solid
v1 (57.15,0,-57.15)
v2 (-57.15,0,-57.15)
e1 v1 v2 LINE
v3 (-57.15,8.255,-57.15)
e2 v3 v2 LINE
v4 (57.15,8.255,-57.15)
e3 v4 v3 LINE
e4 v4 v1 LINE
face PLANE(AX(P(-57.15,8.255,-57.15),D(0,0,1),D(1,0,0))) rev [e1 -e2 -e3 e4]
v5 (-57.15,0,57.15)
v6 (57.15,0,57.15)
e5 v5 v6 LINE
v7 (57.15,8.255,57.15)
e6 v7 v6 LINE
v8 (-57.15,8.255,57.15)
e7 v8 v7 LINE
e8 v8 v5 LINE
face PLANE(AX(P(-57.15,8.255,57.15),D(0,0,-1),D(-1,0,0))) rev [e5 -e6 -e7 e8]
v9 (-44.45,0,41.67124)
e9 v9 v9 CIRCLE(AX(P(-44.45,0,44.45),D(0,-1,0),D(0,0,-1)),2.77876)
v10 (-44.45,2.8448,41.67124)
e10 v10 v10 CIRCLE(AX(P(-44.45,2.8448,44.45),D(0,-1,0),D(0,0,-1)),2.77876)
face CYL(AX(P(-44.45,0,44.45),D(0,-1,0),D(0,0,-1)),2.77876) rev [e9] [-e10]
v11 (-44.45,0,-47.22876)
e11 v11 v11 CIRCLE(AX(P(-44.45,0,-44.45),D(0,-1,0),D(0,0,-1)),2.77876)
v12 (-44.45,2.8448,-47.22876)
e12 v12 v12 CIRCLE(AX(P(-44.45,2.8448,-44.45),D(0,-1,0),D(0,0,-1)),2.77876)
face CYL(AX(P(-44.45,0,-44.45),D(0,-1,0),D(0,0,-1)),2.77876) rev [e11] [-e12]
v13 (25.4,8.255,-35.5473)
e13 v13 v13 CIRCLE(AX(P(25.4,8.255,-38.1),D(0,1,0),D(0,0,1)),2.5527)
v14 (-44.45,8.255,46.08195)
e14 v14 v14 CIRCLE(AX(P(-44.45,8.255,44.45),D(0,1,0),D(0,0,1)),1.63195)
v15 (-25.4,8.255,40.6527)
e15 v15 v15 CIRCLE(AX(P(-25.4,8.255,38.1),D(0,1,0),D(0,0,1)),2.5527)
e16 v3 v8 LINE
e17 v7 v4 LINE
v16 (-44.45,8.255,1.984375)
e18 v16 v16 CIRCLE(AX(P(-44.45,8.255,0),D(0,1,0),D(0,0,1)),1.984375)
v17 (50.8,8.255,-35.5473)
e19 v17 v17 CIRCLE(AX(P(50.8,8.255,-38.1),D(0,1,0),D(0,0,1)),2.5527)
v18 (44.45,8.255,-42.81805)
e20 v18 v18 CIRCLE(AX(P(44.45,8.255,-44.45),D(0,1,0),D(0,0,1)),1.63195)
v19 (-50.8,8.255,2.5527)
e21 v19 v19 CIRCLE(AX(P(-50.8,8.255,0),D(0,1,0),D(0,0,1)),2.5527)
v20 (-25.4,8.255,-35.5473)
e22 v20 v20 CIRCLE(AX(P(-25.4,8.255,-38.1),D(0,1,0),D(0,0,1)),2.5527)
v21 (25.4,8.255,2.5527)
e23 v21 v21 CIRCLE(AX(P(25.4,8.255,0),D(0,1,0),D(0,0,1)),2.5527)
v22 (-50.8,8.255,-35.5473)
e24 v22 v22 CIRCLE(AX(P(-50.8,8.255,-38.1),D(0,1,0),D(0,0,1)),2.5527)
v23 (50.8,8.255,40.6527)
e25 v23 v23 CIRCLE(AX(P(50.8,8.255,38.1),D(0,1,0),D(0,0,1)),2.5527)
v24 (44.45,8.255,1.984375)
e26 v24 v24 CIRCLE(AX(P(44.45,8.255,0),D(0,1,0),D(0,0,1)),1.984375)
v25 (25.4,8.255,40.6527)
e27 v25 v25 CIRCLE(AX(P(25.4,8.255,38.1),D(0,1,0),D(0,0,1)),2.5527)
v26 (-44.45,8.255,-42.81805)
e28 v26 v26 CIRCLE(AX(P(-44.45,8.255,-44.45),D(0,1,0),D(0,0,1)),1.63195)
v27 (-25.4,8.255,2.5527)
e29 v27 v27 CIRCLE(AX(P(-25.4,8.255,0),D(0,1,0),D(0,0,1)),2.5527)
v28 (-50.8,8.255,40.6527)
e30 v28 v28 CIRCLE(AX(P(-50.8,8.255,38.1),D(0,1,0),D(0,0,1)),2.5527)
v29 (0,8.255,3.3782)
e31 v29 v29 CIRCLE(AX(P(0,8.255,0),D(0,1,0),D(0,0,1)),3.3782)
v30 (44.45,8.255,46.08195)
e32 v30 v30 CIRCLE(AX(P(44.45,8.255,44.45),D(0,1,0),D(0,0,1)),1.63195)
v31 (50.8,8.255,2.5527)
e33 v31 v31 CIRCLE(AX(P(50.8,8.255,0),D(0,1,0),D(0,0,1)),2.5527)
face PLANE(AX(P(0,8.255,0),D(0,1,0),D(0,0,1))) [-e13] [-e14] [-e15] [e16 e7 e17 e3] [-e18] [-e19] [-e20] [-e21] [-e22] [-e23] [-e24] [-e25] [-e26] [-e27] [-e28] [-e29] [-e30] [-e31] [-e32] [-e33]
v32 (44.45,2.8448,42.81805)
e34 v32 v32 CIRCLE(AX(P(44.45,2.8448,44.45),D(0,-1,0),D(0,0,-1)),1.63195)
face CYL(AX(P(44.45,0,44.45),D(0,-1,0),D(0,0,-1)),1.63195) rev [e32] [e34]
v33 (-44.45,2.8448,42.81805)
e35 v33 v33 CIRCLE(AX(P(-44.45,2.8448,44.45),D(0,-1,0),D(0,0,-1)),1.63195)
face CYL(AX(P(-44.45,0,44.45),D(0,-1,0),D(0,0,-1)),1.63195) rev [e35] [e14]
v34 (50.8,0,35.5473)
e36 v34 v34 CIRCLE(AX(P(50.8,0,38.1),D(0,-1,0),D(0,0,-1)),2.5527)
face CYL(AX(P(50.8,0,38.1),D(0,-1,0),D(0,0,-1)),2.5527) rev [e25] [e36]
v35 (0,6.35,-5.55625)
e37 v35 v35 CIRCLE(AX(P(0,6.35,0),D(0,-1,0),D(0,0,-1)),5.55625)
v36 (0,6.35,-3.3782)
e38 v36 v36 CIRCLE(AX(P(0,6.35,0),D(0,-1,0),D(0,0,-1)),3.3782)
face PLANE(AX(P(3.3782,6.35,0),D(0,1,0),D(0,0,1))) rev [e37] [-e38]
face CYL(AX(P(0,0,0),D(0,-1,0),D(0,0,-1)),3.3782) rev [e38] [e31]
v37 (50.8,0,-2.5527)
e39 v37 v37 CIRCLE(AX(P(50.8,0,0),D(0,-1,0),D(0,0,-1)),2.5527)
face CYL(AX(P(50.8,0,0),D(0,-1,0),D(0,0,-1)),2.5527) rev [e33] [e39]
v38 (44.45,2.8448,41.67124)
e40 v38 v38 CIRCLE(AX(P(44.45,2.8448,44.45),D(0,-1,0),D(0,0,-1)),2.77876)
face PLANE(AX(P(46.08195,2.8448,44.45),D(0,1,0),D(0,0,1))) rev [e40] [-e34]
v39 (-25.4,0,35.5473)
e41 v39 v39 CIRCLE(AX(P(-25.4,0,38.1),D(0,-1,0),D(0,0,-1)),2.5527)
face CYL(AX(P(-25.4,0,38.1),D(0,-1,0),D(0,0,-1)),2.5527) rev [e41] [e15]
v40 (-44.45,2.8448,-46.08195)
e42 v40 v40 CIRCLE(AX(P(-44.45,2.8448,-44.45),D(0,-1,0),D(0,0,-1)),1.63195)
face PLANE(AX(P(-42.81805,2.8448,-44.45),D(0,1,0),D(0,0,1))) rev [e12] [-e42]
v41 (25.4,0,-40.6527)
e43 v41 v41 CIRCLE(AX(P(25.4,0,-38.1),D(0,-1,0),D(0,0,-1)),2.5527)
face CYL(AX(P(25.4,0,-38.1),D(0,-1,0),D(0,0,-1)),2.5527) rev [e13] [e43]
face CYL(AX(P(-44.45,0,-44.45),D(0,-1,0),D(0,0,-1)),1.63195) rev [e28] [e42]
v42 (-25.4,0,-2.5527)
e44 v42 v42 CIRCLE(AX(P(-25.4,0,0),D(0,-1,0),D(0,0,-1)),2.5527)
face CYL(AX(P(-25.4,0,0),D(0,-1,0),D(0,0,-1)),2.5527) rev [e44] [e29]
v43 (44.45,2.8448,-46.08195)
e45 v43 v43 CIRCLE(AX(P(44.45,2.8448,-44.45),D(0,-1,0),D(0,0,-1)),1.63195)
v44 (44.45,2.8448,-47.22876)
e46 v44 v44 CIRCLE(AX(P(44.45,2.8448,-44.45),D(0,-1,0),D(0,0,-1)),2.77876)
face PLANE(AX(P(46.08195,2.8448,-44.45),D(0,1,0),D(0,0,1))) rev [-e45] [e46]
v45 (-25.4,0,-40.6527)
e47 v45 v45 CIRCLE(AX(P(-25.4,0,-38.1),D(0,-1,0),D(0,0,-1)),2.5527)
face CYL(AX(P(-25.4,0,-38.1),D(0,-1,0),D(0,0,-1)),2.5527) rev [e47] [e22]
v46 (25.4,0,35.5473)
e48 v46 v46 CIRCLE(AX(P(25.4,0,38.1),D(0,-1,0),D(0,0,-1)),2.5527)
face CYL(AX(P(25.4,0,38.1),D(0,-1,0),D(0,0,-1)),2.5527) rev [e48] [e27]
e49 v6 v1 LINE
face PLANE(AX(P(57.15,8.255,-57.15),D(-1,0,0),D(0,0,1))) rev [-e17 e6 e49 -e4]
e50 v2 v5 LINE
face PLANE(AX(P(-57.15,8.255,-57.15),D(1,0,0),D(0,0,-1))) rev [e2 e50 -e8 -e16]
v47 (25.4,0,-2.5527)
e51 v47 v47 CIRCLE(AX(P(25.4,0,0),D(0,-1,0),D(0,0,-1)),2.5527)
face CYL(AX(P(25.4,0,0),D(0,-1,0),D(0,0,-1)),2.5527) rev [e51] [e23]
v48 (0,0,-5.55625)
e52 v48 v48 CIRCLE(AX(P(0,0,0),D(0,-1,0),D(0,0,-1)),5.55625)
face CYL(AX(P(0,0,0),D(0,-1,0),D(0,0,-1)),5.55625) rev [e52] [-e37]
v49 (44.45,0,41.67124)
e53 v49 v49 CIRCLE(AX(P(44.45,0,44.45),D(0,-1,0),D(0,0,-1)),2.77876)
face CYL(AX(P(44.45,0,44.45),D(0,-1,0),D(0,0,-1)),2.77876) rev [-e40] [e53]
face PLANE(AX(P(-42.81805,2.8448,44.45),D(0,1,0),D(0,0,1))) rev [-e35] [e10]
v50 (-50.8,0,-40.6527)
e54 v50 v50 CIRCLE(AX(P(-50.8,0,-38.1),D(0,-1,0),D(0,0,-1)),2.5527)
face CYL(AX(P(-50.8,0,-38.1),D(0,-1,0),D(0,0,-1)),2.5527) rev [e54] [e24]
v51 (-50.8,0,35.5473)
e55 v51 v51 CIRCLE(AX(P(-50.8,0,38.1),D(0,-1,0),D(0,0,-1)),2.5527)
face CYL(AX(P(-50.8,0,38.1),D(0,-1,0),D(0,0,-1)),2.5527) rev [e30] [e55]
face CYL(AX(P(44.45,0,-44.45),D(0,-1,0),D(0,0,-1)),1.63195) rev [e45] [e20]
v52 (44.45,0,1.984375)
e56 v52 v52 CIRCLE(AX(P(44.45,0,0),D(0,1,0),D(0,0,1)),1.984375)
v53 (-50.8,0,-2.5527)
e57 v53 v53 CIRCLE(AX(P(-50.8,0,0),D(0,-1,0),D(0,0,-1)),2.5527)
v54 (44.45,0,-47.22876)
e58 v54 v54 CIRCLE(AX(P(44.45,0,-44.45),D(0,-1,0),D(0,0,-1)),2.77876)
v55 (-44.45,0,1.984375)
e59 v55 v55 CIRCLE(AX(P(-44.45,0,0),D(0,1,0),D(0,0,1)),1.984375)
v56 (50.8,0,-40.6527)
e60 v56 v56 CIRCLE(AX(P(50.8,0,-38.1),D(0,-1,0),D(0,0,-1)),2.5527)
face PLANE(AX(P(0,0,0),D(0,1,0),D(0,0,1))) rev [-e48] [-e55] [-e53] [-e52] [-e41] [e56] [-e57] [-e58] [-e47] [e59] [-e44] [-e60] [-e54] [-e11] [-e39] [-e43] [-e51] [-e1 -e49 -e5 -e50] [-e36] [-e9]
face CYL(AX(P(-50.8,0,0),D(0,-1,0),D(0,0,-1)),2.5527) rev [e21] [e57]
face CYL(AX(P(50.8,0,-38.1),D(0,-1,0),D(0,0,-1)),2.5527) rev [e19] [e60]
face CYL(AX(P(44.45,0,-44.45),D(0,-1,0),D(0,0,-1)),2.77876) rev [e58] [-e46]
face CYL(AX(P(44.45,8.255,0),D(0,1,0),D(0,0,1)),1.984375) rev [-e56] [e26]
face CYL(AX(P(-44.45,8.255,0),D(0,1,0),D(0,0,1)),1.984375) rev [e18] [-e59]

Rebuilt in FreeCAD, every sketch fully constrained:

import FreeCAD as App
import Part
import Sketcher
Q = App.Units.Quantity

doc = App.newDocument("Part")
params = doc.addObject("Spreadsheet::Sheet", "Params")
for row, (alias, value) in enumerate([
    ("sketch1_width", "4.5 in"),
    ("pad1_length", "0.325 in"),
    ("sketch2_diameter", "0.266 in"),
    ("hole_diameter", "0.266 in"),
    ("hole_cbore_diameter", "0.4375 in"),
    ("hole_cbore_depth", "0.25 in"),
    ("sketch3_diameter", "0.15625 in"),
    ("hole2_diameter", "0.15625 in"),
    ("hole3_diameter", "0.1285 in"),
    ("hole3_depth", "0.325 in"),
    ("hole3_cbore_diameter", "0.2188 in"),
    ("hole3_cbore_depth", "0.112 in"),
    ("sketch5_diameter", "0.201 in"),
    ("hole4_diameter", "0.201 in"),
], start=1):
    params.set(f"A{row}", alias)
    params.set(f"B{row}", "=" + value)
    params.setAlias(f"B{row}", alias)

body = doc.addObject("PartDesign::Body", "Body")

sketch1 = body.newObject("Sketcher::SketchObject", "Sketch")
sketch1.AttachmentSupport = (doc.getObject("XZ_Plane"), [""])
sketch1.MapMode = "FlatFace"
sketch1.addGeometry([
    Part.LineSegment(App.Vector(-57, -57, 0), App.Vector(-57, 57, 0)),
    Part.LineSegment(App.Vector(-57, 57, 0), App.Vector(57, 57, 0)),
    Part.LineSegment(App.Vector(57, 57, 0), App.Vector(57, -57, 0)),
    Part.LineSegment(App.Vector(57, -57, 0), App.Vector(-57, -57, 0)),
], False)
sketch1.addConstraint([
    Sketcher.Constraint("Coincident", 0, 2, 1, 1),
    Sketcher.Constraint("Coincident", 1, 2, 2, 1),
    Sketcher.Constraint("Coincident", 2, 2, 3, 1),
    Sketcher.Constraint("Coincident", 3, 2, 0, 1),
    Sketcher.Constraint("Vertical", 0),
    Sketcher.Constraint("Horizontal", 1),
    Sketcher.Constraint("Vertical", 2),
    Sketcher.Constraint("Horizontal", 3),
    Sketcher.Constraint("Symmetric", 0, 2, 2, 2, -1, 1),
    Sketcher.Constraint("Equal", 3, 0),
    Sketcher.Constraint("DistanceX", 1, 1, 1, 2, Q("4.5 in")),
])
sketch1.setExpression("Constraints[10]", "Params.sketch1_width")
pad1 = body.newObject("PartDesign::Pad", "Pad")
pad1.Profile = sketch1
pad1.setExpression("Length", "Params.pad1_length")
pad1.Reversed = True

sketch2 = body.newObject("Sketcher::SketchObject", "Sketch001")
sketch2.AttachmentSupport = (doc.getObject("XZ_Plane"), [""])
sketch2.MapMode = "FlatFace"
sketch2.addGeometry(Part.Circle(App.Vector(0, 0, 0), App.Vector(0, 0, 1), 3.4), False)
sketch2.addConstraint([
    Sketcher.Constraint("Coincident", 0, 3, -1, 1),
    Sketcher.Constraint("Diameter", 0, Q("0.266 in")),
])
sketch2.setExpression("Constraints[1]", "Params.sketch2_diameter")
doc.recompute()
hole = body.newObject("PartDesign::Hole", "Hole")
hole.Profile = sketch2
hole.ThreadType = "None"
hole.setExpression("Diameter", "Params.hole_diameter")
hole.DepthType = "ThroughAll"
hole.HoleCutType = "Counterbore"
hole.setExpression("HoleCutDiameter", "Params.hole_cbore_diameter")
hole.setExpression("HoleCutDepth", "Params.hole_cbore_depth")

sketch3 = body.newObject("Sketcher::SketchObject", "Sketch002")
sketch3.AttachmentSupport = (doc.getObject("XZ_Plane"), [""])
sketch3.MapMode = "FlatFace"
sketch3.AttachmentOffset = App.Placement(App.Vector(0, 0, -0.325 * 25.4), App.Rotation())
sketch3.addGeometry([
    Part.Circle(App.Vector(44.5, 0, 0), App.Vector(0, 0, 1), 2),
    Part.Circle(App.Vector(-44.5, 0, 0), App.Vector(0, 0, 1), 2),
], False)
sketch3.addConstraint([
    Sketcher.Constraint("Equal", 0, 1),
    Sketcher.Constraint("Symmetric", 0, 3, 1, 3, -1, 1),
    Sketcher.Constraint("PointOnObject", 0, 3, -1),
    Sketcher.Constraint("Diameter", 0, Q("0.15625 in")),
    Sketcher.Constraint("DistanceX", 1, 3, 0, 3, Q("3.5 in")),
])
sketch3.setExpression("Constraints[3]", "Params.sketch3_diameter")
doc.recompute()
hole2 = body.newObject("PartDesign::Hole", "Hole001")
hole2.Profile = sketch3
hole2.ThreadType = "None"
hole2.setExpression("Diameter", "Params.hole2_diameter")
hole2.DepthType = "ThroughAll"
hole2.Reversed = True

sketch4 = body.newObject("Sketcher::SketchObject", "Sketch003")
sketch4.AttachmentSupport = (doc.getObject("XZ_Plane"), [""])
sketch4.MapMode = "FlatFace"
sketch4.addGeometry([
    Part.Circle(App.Vector(-44.5, 44.5, 0), App.Vector(0, 0, 1), 1.6),
    Part.Circle(App.Vector(-44.5, -44.5, 0), App.Vector(0, 0, 1), 1.6),
    Part.Circle(App.Vector(44.5, -44.5, 0), App.Vector(0, 0, 1), 1.6),
    Part.Circle(App.Vector(44.5, 44.5, 0), App.Vector(0, 0, 1), 1.6),
    Part.Circle(App.Vector(0, 0, 0), App.Vector(0, 0, 1), 1.6),
], False)
sketch4.addConstraint([
    Sketcher.Constraint("Coincident", 4, 3, -1, 1),
    Sketcher.Constraint("Equal", 0, 1),
    Sketcher.Constraint("Equal", 1, 2),
    Sketcher.Constraint("Equal", 2, 3),
    Sketcher.Constraint("Equal", 3, 4),
    Sketcher.Constraint("Symmetric", 0, 3, 2, 3, -1, 1),
    Sketcher.Constraint("Symmetric", 1, 3, 3, 3, -1, 1),
    Sketcher.Constraint("Symmetric", 1, 3, 2, 3, -2),
    Sketcher.Constraint("Diameter", 0, Q("0.1285 in")),
    Sketcher.Constraint("DistanceY", 1, 3, 0, 3, Q("3.5 in")),
    Sketcher.Constraint("DistanceX", 1, 3, 2, 3, Q("3.5 in")),
])
doc.recompute()
hole3 = body.newObject("PartDesign::Hole", "Hole002")
hole3.Profile = sketch4
hole3.ThreadType = "None"
hole3.setExpression("Diameter", "Params.hole3_diameter")
hole3.DepthType = "Dimension"
hole3.setExpression("Depth", "Params.hole3_depth")
hole3.DrillPoint = "Flat"
hole3.HoleCutType = "Counterbore"
hole3.setExpression("HoleCutDiameter", "Params.hole3_cbore_diameter")
hole3.setExpression("HoleCutDepth", "Params.hole3_cbore_depth")

sketch5 = body.newObject("Sketcher::SketchObject", "Sketch004")
sketch5.AttachmentSupport = (doc.getObject("XZ_Plane"), [""])
sketch5.MapMode = "FlatFace"
sketch5.addGeometry([
    Part.Circle(App.Vector(-50.8, 38.1, 0), App.Vector(0, 0, 1), 2.6),
    Part.Circle(App.Vector(-25.4, 38.1, 0), App.Vector(0, 0, 1), 2.6),
    Part.Circle(App.Vector(-25.4, 0, 0), App.Vector(0, 0, 1), 2.6),
    Part.Circle(App.Vector(-50.8, 0, 0), App.Vector(0, 0, 1), 2.6),
    Part.Circle(App.Vector(-50.8, -38.1, 0), App.Vector(0, 0, 1), 2.6),
    Part.Circle(App.Vector(-25.4, -38.1, 0), App.Vector(0, 0, 1), 2.6),
    Part.Circle(App.Vector(25.4, -38.1, 0), App.Vector(0, 0, 1), 2.6),
    Part.Circle(App.Vector(50.8, -38.1, 0), App.Vector(0, 0, 1), 2.6),
    Part.Circle(App.Vector(50.8, 0, 0), App.Vector(0, 0, 1), 2.6),
    Part.Circle(App.Vector(25.4, 0, 0), App.Vector(0, 0, 1), 2.6),
    Part.Circle(App.Vector(25.4, 38.1, 0), App.Vector(0, 0, 1), 2.6),
    Part.Circle(App.Vector(50.8, 38.1, 0), App.Vector(0, 0, 1), 2.6),
], False)
sketch5.addConstraint([
    Sketcher.Constraint("Equal", 0, 1),
    Sketcher.Constraint("Equal", 1, 2),
    Sketcher.Constraint("Equal", 2, 3),
    Sketcher.Constraint("Equal", 3, 4),
    Sketcher.Constraint("Equal", 4, 5),
    Sketcher.Constraint("Equal", 5, 6),
    Sketcher.Constraint("Equal", 6, 7),
    Sketcher.Constraint("Equal", 7, 8),
    Sketcher.Constraint("Equal", 8, 9),
    Sketcher.Constraint("Equal", 9, 10),
    Sketcher.Constraint("Equal", 10, 11),
    Sketcher.Constraint("Symmetric", 1, 3, 6, 3, -1, 1),
    Sketcher.Constraint("Symmetric", 0, 3, 7, 3, -1, 1),
    Sketcher.Constraint("Symmetric", 3, 3, 8, 3, -1, 1),
    Sketcher.Constraint("Symmetric", 2, 3, 9, 3, -1, 1),
    Sketcher.Constraint("Symmetric", 5, 3, 10, 3, -1, 1),
    Sketcher.Constraint("Symmetric", 4, 3, 11, 3, -1, 1),
    Sketcher.Constraint("Symmetric", 5, 3, 6, 3, -2),
    Sketcher.Constraint("Symmetric", 4, 3, 7, 3, -2),
    Sketcher.Constraint("PointOnObject", 2, 3, -1),
    Sketcher.Constraint("PointOnObject", 3, 3, -1),
    Sketcher.Constraint("Horizontal", 0, 3, 1, 3),
    Sketcher.Constraint("Vertical", 1, 3, 2, 3),
    Sketcher.Constraint("Vertical", 0, 3, 3, 3),
    Sketcher.Constraint("Diameter", 0, Q("0.201 in")),
    Sketcher.Constraint("DistanceX", 0, 3, -1, 1, Q("2 in")),
    Sketcher.Constraint("DistanceX", 1, 3, -1, 1, Q("1 in")),
    Sketcher.Constraint("DistanceY", 4, 3, 0, 3, Q("3 in")),
])
sketch5.setExpression("Constraints[24]", "Params.sketch5_diameter")
doc.recompute()
hole4 = body.newObject("PartDesign::Hole", "Hole003")
hole4.Profile = sketch5
hole4.ThreadType = "None"
hole4.setExpression("Diameter", "Params.hole4_diameter")
hole4.DepthType = "ThroughAll"

doc.recompute()
